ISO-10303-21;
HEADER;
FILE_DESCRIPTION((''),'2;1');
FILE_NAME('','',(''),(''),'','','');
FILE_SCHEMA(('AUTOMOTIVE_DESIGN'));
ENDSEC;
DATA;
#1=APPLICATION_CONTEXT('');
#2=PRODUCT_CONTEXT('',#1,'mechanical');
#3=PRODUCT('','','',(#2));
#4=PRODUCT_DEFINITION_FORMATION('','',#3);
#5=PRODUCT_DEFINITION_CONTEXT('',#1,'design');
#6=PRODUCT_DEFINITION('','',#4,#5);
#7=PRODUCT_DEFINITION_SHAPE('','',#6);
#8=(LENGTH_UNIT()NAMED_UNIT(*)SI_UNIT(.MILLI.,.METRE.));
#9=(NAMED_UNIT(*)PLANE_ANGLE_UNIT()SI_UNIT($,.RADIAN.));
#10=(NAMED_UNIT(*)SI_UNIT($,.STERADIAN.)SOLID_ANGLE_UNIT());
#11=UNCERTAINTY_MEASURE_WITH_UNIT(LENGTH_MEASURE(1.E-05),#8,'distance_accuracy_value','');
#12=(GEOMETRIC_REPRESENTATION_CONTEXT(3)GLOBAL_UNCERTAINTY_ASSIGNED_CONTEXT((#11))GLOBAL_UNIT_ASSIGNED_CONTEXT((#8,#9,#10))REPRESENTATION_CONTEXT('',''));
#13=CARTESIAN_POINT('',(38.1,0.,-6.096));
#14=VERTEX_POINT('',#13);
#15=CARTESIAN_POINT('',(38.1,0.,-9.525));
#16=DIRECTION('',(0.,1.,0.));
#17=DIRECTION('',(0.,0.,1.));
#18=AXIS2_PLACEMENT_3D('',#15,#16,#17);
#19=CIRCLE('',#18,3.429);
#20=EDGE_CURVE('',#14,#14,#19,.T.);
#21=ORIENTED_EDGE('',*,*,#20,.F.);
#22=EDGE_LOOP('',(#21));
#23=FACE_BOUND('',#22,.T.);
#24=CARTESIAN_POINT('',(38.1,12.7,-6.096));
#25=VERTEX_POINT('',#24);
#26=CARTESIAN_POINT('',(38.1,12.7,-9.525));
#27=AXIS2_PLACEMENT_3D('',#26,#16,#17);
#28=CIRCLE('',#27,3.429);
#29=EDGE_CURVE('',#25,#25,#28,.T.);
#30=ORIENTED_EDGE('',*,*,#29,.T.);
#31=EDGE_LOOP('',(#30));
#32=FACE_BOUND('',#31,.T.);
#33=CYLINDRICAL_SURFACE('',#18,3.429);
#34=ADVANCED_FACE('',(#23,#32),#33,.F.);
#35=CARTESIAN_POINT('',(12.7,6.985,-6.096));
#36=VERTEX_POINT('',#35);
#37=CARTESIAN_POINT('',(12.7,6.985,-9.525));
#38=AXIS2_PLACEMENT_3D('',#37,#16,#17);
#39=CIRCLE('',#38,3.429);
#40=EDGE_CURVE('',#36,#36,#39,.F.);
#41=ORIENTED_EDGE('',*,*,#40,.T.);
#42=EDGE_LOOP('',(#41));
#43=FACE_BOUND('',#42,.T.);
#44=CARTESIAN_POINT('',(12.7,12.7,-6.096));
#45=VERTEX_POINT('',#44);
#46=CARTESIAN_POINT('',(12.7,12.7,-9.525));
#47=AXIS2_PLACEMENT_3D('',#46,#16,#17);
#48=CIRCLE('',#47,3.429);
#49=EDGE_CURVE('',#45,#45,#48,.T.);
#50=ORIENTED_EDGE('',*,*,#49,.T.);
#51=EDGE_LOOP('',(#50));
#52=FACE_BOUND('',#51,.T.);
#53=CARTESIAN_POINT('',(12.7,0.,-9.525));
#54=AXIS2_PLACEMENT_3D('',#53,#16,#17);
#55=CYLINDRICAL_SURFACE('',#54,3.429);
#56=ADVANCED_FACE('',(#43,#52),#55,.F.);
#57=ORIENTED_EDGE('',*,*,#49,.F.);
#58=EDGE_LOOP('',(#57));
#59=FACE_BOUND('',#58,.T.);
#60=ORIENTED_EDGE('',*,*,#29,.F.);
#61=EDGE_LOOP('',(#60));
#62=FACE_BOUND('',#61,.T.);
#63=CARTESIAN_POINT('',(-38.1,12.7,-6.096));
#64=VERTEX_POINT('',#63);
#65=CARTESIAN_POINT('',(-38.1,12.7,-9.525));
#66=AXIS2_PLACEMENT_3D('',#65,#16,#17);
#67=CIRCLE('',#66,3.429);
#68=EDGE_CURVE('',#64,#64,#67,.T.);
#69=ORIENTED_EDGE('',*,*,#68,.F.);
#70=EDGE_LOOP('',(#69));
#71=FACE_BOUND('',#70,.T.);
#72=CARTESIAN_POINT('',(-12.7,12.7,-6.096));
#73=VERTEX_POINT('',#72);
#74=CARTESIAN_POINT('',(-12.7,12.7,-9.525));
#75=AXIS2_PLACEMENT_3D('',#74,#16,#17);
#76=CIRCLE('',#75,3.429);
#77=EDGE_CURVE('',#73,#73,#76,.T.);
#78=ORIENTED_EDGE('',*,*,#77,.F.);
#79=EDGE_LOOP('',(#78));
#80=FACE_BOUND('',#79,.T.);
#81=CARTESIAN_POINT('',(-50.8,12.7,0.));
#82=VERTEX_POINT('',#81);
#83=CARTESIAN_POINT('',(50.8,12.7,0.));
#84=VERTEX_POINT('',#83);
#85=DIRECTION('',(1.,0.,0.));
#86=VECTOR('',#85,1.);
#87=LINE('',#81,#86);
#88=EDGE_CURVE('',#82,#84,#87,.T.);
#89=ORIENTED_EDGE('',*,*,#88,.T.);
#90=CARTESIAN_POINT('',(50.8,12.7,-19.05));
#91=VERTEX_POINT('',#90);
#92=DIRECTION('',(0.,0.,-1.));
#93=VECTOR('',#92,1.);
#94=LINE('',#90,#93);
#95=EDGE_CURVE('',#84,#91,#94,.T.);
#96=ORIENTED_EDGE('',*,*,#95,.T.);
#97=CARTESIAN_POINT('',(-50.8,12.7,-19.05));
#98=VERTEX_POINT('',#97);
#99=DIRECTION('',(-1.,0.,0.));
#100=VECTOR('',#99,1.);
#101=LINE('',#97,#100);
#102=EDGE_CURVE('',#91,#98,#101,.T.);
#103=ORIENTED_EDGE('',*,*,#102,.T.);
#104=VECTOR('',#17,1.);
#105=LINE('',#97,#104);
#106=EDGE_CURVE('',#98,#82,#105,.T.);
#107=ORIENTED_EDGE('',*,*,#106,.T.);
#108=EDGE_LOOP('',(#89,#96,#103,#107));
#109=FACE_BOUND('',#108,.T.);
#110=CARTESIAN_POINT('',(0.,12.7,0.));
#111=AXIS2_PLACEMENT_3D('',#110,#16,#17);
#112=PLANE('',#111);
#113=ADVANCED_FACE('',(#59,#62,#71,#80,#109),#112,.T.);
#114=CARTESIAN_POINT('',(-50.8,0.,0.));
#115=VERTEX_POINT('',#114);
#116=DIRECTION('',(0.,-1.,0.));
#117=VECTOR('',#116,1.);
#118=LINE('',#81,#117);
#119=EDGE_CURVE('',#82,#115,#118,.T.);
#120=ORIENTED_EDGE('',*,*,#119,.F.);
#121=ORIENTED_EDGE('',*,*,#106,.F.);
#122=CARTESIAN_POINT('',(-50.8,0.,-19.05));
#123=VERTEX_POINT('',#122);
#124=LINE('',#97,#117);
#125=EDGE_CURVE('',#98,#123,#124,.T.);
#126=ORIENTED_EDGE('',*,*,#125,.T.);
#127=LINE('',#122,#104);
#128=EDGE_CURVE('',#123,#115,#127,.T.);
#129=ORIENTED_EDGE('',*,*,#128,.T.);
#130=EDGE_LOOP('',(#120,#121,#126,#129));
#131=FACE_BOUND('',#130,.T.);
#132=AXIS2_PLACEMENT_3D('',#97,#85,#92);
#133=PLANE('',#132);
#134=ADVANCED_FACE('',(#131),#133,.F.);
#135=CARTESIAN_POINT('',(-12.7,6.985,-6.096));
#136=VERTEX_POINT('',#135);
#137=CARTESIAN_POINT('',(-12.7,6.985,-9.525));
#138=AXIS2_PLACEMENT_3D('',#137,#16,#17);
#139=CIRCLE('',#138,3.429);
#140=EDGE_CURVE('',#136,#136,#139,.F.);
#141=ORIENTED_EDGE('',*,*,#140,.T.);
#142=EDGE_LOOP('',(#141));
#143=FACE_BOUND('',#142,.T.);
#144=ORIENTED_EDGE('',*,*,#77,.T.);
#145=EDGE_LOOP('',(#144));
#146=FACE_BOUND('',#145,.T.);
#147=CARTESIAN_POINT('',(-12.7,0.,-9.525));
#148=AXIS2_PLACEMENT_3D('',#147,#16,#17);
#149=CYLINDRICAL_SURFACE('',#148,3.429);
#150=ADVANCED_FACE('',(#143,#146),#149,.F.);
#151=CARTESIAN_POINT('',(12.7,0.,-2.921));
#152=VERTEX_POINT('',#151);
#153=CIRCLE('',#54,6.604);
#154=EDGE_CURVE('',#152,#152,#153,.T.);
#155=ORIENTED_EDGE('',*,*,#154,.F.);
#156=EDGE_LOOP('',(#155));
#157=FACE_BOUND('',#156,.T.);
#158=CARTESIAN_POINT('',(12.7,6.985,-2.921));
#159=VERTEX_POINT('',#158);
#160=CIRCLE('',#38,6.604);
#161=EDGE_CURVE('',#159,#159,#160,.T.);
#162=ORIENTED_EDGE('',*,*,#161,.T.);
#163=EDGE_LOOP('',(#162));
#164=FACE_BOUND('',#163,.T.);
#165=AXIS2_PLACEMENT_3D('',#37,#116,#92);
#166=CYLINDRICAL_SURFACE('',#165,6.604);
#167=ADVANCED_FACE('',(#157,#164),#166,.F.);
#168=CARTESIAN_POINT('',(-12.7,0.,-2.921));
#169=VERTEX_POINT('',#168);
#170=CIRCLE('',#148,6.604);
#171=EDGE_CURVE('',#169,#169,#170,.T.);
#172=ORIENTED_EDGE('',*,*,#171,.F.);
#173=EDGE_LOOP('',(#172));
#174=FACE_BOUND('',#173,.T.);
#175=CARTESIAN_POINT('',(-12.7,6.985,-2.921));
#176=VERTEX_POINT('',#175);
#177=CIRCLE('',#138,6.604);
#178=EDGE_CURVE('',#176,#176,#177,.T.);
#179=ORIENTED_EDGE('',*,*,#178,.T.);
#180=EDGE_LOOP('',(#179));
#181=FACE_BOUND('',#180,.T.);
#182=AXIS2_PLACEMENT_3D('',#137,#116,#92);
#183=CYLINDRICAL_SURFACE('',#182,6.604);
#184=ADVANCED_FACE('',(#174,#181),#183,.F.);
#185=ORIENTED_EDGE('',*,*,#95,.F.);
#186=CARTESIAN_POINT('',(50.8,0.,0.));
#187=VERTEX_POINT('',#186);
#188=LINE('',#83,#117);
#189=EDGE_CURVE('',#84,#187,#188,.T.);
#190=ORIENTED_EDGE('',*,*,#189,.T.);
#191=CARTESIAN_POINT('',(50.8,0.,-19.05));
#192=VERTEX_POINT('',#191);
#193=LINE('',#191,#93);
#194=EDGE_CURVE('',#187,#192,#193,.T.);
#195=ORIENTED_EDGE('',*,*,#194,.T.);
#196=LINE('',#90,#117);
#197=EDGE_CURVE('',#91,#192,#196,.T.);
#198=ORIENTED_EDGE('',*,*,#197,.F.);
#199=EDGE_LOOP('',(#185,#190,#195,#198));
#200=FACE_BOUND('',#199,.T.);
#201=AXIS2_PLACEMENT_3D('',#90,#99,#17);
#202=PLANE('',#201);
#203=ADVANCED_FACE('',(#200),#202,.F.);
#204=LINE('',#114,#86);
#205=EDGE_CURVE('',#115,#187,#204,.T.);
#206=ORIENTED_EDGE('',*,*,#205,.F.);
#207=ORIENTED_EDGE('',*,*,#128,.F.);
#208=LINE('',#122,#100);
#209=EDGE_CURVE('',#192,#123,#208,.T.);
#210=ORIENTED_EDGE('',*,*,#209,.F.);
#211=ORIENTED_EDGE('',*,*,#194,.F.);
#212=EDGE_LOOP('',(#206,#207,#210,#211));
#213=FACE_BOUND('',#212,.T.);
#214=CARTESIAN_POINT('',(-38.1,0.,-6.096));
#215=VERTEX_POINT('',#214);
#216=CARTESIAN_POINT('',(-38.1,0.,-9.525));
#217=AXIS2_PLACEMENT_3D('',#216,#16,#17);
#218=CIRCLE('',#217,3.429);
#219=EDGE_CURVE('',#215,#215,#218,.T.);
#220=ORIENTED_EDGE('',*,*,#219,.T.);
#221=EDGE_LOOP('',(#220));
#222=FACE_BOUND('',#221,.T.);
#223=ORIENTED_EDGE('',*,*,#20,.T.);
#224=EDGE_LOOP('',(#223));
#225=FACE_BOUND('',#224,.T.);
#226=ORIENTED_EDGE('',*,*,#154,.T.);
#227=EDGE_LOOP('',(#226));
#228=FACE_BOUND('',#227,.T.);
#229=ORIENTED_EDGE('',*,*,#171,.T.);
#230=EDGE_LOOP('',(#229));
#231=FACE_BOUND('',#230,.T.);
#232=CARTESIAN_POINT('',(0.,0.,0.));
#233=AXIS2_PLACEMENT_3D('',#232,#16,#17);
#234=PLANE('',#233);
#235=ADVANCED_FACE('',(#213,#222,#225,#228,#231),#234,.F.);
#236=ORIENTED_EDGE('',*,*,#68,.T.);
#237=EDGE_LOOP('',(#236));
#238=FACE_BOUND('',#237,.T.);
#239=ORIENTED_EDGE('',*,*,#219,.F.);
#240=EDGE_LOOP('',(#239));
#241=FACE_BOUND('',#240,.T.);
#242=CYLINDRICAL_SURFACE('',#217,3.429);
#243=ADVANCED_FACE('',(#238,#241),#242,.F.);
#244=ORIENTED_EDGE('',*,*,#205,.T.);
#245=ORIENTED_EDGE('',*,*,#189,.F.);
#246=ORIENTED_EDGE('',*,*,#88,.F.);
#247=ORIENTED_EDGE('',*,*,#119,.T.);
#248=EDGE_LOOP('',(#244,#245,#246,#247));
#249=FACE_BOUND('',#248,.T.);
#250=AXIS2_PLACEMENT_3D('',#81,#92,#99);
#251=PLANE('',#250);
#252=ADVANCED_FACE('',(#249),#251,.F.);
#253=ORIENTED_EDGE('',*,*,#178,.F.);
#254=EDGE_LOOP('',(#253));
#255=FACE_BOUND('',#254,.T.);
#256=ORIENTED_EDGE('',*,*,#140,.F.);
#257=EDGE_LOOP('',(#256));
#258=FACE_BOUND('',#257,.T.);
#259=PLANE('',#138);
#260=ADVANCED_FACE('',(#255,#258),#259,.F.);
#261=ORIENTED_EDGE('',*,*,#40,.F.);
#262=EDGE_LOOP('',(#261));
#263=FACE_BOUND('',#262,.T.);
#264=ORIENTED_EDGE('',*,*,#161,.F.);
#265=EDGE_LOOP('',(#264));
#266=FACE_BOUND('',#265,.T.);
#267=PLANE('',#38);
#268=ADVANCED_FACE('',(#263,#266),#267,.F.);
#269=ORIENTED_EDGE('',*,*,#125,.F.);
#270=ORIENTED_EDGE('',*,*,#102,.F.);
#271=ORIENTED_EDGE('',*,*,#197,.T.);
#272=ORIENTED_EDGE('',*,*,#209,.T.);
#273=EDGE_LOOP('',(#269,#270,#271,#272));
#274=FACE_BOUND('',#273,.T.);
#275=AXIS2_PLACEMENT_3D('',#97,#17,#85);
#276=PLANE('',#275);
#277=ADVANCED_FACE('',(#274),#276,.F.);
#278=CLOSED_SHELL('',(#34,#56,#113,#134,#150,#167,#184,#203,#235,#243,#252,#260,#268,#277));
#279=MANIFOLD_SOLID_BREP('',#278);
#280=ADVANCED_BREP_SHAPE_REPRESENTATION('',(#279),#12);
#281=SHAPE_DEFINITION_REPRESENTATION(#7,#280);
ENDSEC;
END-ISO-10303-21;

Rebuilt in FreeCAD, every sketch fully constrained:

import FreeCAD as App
import Part
import Sketcher
Q = App.Units.Quantity


def add_polygon(sketch, points):
    """Adds a closed chain of lines whose ends are joined by coincident constraints."""
    first, n = sketch.GeometryCount, len(points)
    for a, b in zip(points, points[1:] + points[:1]):
        sketch.addGeometry(Part.LineSegment(App.Vector(*a, 0), App.Vector(*b, 0)), False)
    for i in range(n):
        sketch.addConstraint(Sketcher.Constraint("Coincident", first + i, 2, first + (i + 1) % n, 1))

doc = App.newDocument("Part")
body = doc.addObject("PartDesign::Body", "Body")

# Sketch on XZ plane
sketch1 = body.newObject("Sketcher::SketchObject", "Sketch")
sketch1.AttachmentSupport = (doc.getObject("XZ_Plane"), [""])
sketch1.MapMode = "FlatFace"
add_polygon(sketch1, [(-51, -19), (-51, 0), (51, 0), (51, -19)])  # lines 0-3
sketch1.addConstraint([
    Sketcher.Constraint("Vertical", 0),
    Sketcher.Constraint("Horizontal", 1),
    Sketcher.Constraint("Vertical", 2),
    Sketcher.Constraint("Horizontal", 3),
    Sketcher.Constraint("Symmetric", 0, 2, 1, 2, -1, 1),
    Sketcher.Constraint("DistanceX", 1, 1, 1, 2, Q("4 in")),
    Sketcher.Constraint("DistanceY", 0, 1, 0, 2, Q("0.75 in")),
])
pad1 = body.newObject("PartDesign::Pad", "Pad")
pad1.Profile = sketch1
pad1.Length = Q("0.5 in")
pad1.Reversed = True

# Sketch on XZ plane
sketch2 = body.newObject("Sketcher::SketchObject", "Sketch001")
sketch2.AttachmentSupport = (doc.getObject("XZ_Plane"), [""])
sketch2.MapMode = "FlatFace"
sketch2.AttachmentOffset = App.Placement(App.Vector(0, 0, -0.5 * 25.4), App.Rotation())
sketch2.addGeometry([
    Part.Circle(App.Vector(-38.1, -9.5, 0), App.Vector(0, 0, 1), 3.4),
    Part.Circle(App.Vector(38.1, -9.5, 0), App.Vector(0, 0, 1), 3.4),
    Part.Circle(App.Vector(-12.7, -9.5, 0), App.Vector(0, 0, 1), 3.4),
    Part.Circle(App.Vector(12.7, -9.5, 0), App.Vector(0, 0, 1), 3.4),
], False)
sketch2.addConstraint([
    Sketcher.Constraint("Equal", 0, 1),
    Sketcher.Constraint("Equal", 1, 2),
    Sketcher.Constraint("Equal", 2, 3),
    Sketcher.Constraint("Symmetric", 0, 3, 1, 3, -2),
    Sketcher.Constraint("Symmetric", 2, 3, 3, 3, -2),
    Sketcher.Constraint("Horizontal", 1, 3, 2, 3),
    Sketcher.Constraint("Diameter", 0, Q("0.27 in")),
    Sketcher.Constraint("DistanceX", 0, 3, 1, 3, Q("3 in")),
    Sketcher.Constraint("DistanceX", 0, 3, 2, 3, Q("1 in")),
    Sketcher.Constraint("DistanceY", 0, 3, -1, 1, Q("0.375 in")),
])
pocket1 = body.newObject("PartDesign::Pocket", "Pocket")
pocket1.Profile = sketch2
pocket1.Type = "ThroughAll"
pocket1.Reversed = True

# Sketch on XZ plane
sketch3 = body.newObject("Sketcher::SketchObject", "Sketch002")
sketch3.AttachmentSupport = (doc.getObject("XZ_Plane"), [""])
sketch3.MapMode = "FlatFace"
sketch3.addGeometry([
    Part.Circle(App.Vector(-13, -10, 0), App.Vector(0, 0, 1), 7),
    Part.Circle(App.Vector(13, -10, 0), App.Vector(0, 0, 1), 7),
], False)
sketch3.addConstraint([
    Sketcher.Constraint("Equal", 0, 1),
    Sketcher.Constraint("Symmetric", 0, 3, 1, 3, -2),
    Sketcher.Constraint("Diameter", 0, Q("0.52 in")),
    Sketcher.Constraint("DistanceX", 0, 3, 1, 3, Q("1 in")),
    Sketcher.Constraint("DistanceY", 0, 3, -1, 1, Q("0.375 in")),
])
pocket2 = body.newObject("PartDesign::Pocket", "Pocket001")
pocket2.Profile = sketch3
pocket2.Length = Q("0.275 in")

doc.recompute()
